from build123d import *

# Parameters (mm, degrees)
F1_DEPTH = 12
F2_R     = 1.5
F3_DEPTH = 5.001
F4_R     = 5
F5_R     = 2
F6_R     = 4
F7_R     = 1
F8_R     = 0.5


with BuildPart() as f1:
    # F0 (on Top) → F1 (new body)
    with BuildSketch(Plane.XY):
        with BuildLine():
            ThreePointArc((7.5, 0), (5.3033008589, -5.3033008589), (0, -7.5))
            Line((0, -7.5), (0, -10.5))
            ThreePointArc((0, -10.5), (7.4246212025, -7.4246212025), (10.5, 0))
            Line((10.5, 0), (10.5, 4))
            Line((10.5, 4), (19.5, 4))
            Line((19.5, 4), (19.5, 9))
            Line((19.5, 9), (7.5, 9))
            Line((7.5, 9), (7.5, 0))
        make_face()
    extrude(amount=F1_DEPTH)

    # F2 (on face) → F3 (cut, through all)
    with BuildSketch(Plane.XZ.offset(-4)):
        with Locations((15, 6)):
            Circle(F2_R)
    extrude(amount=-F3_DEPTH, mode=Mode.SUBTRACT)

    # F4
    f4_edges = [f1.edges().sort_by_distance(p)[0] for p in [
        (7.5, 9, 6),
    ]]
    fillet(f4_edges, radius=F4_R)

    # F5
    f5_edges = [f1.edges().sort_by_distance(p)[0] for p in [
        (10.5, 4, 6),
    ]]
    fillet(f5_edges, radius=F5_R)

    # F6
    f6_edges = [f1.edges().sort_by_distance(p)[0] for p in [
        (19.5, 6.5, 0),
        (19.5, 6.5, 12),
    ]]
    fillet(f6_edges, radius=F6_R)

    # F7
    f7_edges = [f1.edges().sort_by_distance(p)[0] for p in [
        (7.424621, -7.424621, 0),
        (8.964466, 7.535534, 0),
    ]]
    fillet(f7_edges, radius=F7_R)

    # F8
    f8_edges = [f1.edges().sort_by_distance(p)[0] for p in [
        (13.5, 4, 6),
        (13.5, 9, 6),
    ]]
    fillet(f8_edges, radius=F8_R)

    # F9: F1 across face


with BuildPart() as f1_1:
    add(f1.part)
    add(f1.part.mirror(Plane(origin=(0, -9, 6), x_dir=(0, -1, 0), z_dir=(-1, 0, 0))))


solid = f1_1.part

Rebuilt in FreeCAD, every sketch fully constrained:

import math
import FreeCAD as App
import Part
import Sketcher
from FreeCAD import Vector
Q = App.Units.Quantity


def edges_at(feature, points):
    """Names of the edges that pass closest to the given points."""
    edges = feature.Shape.Edges
    near = lambda p: min(range(len(edges)), key=lambda i: edges[i].distToShape(Part.Vertex(*p))[0])
    return sorted({f"Edge{near(p) + 1}" for p in points})

doc = App.newDocument("Part")
body = doc.addObject("PartDesign::Body", "Body")

# Sketch on XY plane
sketch1 = body.newObject("Sketcher::SketchObject", "Sketch")
sketch1.AttachmentSupport = (doc.getObject("XY_Plane"), [""])
sketch1.MapMode = "FlatFace"
sketch1.addGeometry([
    Part.ArcOfCircle(Part.Circle(Vector(0, 0, 0), Vector(0, 0, 1), 7.5), math.radians(-90), math.radians(0)),  # 0
    Part.LineSegment(Vector(0, -7.5, 0), Vector(0, -10.5, 0)),  # 1
    Part.ArcOfCircle(Part.Circle(Vector(0, 0, 0), Vector(0, 0, 1), 10.5), math.radians(-90), math.radians(0)),  # 2
    Part.LineSegment(Vector(10.5, 0, 0), Vector(10.5, 4, 0)),  # 3
    Part.LineSegment(Vector(10.5, 4, 0), Vector(19.5, 4, 0)),  # 4
    Part.LineSegment(Vector(19.5, 4, 0), Vector(19.5, 9, 0)),  # 5
    Part.LineSegment(Vector(19.5, 9, 0), Vector(7.5, 9, 0)),  # 6
    Part.LineSegment(Vector(7.5, 9, 0), Vector(7.5, 0, 0)),  # 7
], False)
sketch1.addConstraint([
    Sketcher.Constraint("Coincident", 0, 1, 1, 1),
    Sketcher.Constraint("Coincident", 1, 2, 2, 1),
    Sketcher.Constraint("Tangent", 2, 2, 3, 1),
    Sketcher.Constraint("Coincident", 3, 2, 4, 1),
    Sketcher.Constraint("Coincident", 4, 2, 5, 1),
    Sketcher.Constraint("Coincident", 5, 2, 6, 1),
    Sketcher.Constraint("Coincident", 6, 2, 7, 1),
    Sketcher.Constraint("Tangent", 7, 2, 0, 2),
    Sketcher.Constraint("Vertical", 1),
    Sketcher.Constraint("Vertical", 3),
    Sketcher.Constraint("Horizontal", 4),
    Sketcher.Constraint("Vertical", 5),
    Sketcher.Constraint("Horizontal", 6),
    Sketcher.Constraint("Vertical", 7),
    Sketcher.Constraint("Coincident", 0, 3, -1, 1),
    Sketcher.Constraint("Coincident", 2, 3, -1, 1),
    Sketcher.Constraint("PointOnObject", 0, 1, -2),
    Sketcher.Constraint("Equal", 4, 7),
    Sketcher.Constraint("Radius", 0, Q("7.5 mm")),
    Sketcher.Constraint("Radius", 2, Q("10.5 mm")),
    Sketcher.Constraint("DistanceX", 4, 1, 4, 2, Q("9 mm")),
    Sketcher.Constraint("DistanceY", 3, 1, 3, 2, Q("4 mm")),
])
pad1 = body.newObject("PartDesign::Pad", "Pad")
pad1.Profile = sketch1
pad1.Length = 12

# Sketch on XZ plane
sketch2 = body.newObject("Sketcher::SketchObject", "Sketch001")
sketch2.AttachmentSupport = (doc.getObject("XZ_Plane"), [""])
sketch2.MapMode = "FlatFace"
sketch2.AttachmentOffset = App.Placement(Vector(0, 0, -4), App.Rotation())
sketch2.addGeometry(Part.Circle(Vector(15, 6, 0), Vector(0, 0, 1), 1.5), False)
sketch2.addConstraint([
    Sketcher.Constraint("Diameter", 0, Q("3 mm")),
    Sketcher.Constraint("DistanceX", -1, 1, 0, 3, Q("15 mm")),
    Sketcher.Constraint("DistanceY", -1, 1, 0, 3, Q("6 mm")),
])
pocket1 = body.newObject("PartDesign::Pocket", "Pocket")
pocket1.Profile = sketch2
pocket1.Type = "ThroughAll"
doc.recompute()

fillet = body.newObject("PartDesign::Fillet", "Fillet")
fillet.Base = (pocket1, edges_at(pocket1, [(7.5, 9, 6)]))
fillet.Radius = 5
doc.recompute()

fillet2 = body.newObject("PartDesign::Fillet", "Fillet001")
fillet2.Base = (fillet, edges_at(fillet, [(10.5, 4, 6)]))
fillet2.Radius = 2
doc.recompute()

fillet3 = body.newObject("PartDesign::Fillet", "Fillet002")
fillet3.Base = (fillet2, edges_at(fillet2, [(19.5, 6.5, 0), (19.5, 6.5, 12)]))
fillet3.Radius = 4
doc.recompute()

fillet4 = body.newObject("PartDesign::Fillet", "Fillet003")
fillet4.Base = (fillet3, edges_at(fillet3, [(7.425, -7.425, 0), (8.964, 7.536, 0)]))
fillet4.Radius = 1
doc.recompute()

fillet5 = body.newObject("PartDesign::Fillet", "Fillet004")
fillet5.Base = (fillet4, edges_at(fillet4, [(13.5, 4, 6), (13.5, 9, 6)]))
fillet5.Radius = 0.5
body2 = doc.addObject("PartDesign::Body", "Body001")
doc.recompute()

body2.BaseFeature = body
doc.recompute()

mirroring = doc.addObject("Part::Mirroring", "Mirroring")
mirroring.Source = body
mirroring.Base = Vector(0, -9, 6)
mirroring.Normal = Vector(-1, 0, 0)
body3 = doc.addObject("PartDesign::Body", "Body002")
body3.BaseFeature = mirroring
boolean = body2.newObject("PartDesign::Boolean", "Boolean")
boolean.Type = "Fuse"
boolean.addObjects([body3])
doc.recompute()
mirroring.Visibility = False

doc.recompute()
